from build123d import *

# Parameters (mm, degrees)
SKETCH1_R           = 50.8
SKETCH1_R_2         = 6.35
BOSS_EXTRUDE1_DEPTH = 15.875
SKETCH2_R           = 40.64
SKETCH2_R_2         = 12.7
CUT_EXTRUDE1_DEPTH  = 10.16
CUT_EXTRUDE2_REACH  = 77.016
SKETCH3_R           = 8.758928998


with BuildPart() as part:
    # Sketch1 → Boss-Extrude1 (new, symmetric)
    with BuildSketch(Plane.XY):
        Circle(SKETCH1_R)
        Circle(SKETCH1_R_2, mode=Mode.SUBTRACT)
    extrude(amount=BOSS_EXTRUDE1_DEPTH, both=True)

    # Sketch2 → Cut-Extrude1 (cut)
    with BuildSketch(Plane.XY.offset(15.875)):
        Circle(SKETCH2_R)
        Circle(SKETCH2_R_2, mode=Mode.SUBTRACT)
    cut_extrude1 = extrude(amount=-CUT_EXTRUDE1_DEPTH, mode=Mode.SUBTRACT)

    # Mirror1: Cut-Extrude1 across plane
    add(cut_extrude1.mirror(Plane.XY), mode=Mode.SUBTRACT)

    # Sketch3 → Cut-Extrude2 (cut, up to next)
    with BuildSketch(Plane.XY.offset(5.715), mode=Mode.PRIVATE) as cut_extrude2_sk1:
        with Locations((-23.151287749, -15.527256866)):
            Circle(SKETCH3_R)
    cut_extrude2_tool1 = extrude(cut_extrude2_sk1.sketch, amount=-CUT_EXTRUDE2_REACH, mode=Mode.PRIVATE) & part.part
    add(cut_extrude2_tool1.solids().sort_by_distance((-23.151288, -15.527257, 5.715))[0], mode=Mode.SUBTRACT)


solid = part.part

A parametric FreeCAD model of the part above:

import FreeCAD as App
import Part
import Sketcher
from FreeCAD import Vector
Q = App.Units.Quantity

doc = App.newDocument("Part")
params = doc.addObject("Spreadsheet::Sheet", "Params")
for row, (alias, value) in enumerate([
    ("sketch1_diameter", "4 in"),
    ("sketch1_diameter2", "0.5 in"),
    ("pad1_length", "1.25 in"),
    ("sketch2_diameter", "1 in"),
    ("sketch2_diameter2", "3.2 in"),
    ("pocket1_length", "0.4 in"),
], start=1):
    params.set(f"A{row}", alias)
    params.set(f"B{row}", "=" + value)
    params.setAlias(f"B{row}", alias)

body = doc.addObject("PartDesign::Body", "Body")

sketch1 = doc.addObject("Sketcher::SketchObject", "Sketch")
body.addObject(sketch1)
sketch1.AttachmentSupport = (doc.XY_Plane, [""])
sketch1.MapMode = "FlatFace"
sketch1.addGeometry([
    Part.Circle(Vector(0, 0, 0), Vector(0, 0, 1), 51),
    Part.Circle(Vector(0, 0, 0), Vector(0, 0, 1), 6),
], False)
sketch1.addConstraint([
    Sketcher.Constraint("Coincident", 0, 3, -1, 1),
    Sketcher.Constraint("Coincident", 1, 3, -1, 1),
    Sketcher.Constraint("Diameter", 0, Q("4 in")),
    Sketcher.Constraint("Diameter", 1, Q("0.5 in")),
])
sketch1.setExpression("Constraints[2]", "Params.sketch1_diameter")
sketch1.setExpression("Constraints[3]", "Params.sketch1_diameter2")
pad1 = doc.addObject("PartDesign::Pad", "Pad")
body.addObject(pad1)
pad1.Profile = sketch1
pad1.setExpression("Length", "Params.pad1_length")
pad1.Midplane = True

sketch2 = doc.addObject("Sketcher::SketchObject", "Sketch001")
body.addObject(sketch2)
sketch2.AttachmentSupport = (doc.XY_Plane, [""])
sketch2.MapMode = "FlatFace"
sketch2.AttachmentOffset = App.Placement(Vector(0, 0, 0.625 * 25.4), App.Rotation())
sketch2.addGeometry([
    Part.Circle(Vector(0, 0, 0), Vector(0, 0, 1), 41),
    Part.Circle(Vector(0, 0, 0), Vector(0, 0, 1), 13),
], False)
sketch2.addConstraint([
    Sketcher.Constraint("Coincident", 0, 3, -1, 1),
    Sketcher.Constraint("Coincident", 1, 3, -1, 1),
    Sketcher.Constraint("Diameter", 1, Q("1 in")),
    Sketcher.Constraint("Diameter", 0, Q("3.2 in")),
])
sketch2.setExpression("Constraints[2]", "Params.sketch2_diameter")
sketch2.setExpression("Constraints[3]", "Params.sketch2_diameter2")
pocket1 = doc.addObject("PartDesign::Pocket", "Pocket")
body.addObject(pocket1)
pocket1.Profile = sketch2
pocket1.setExpression("Length", "Params.pocket1_length")
doc.recompute()

mirrored = doc.addObject("PartDesign::Mirrored", "Mirrored")
body.addObject(mirrored)
mirrored.Originals = [pocket1]
mirrored.MirrorPlane = (doc.XY_Plane, [""])
body.Tip = mirrored

sketch3 = doc.addObject("Sketcher::SketchObject", "Sketch002")
body.addObject(sketch3)
sketch3.AttachmentSupport = (doc.XY_Plane, [""])
sketch3.MapMode = "FlatFace"
sketch3.AttachmentOffset = App.Placement(Vector(0, 0, 0.225 * 25.4), App.Rotation())
sketch3.addGeometry(Part.Circle(Vector(-23, -16, 0), Vector(0, 0, 1), 9), False)
sketch3.addConstraint([
    Sketcher.Constraint("Diameter", 0, 17.517858),
    Sketcher.Constraint("DistanceX", 0, 3, -1, 1, 23.151288),
    Sketcher.Constraint("DistanceY", 0, 3, -1, 1, 15.527257),
])
pocket2 = doc.addObject("PartDesign::Pocket", "Pocket001")
body.addObject(pocket2)
pocket2.Profile = sketch3
pocket2.Type = "UpToFirst"

doc.recompute()
